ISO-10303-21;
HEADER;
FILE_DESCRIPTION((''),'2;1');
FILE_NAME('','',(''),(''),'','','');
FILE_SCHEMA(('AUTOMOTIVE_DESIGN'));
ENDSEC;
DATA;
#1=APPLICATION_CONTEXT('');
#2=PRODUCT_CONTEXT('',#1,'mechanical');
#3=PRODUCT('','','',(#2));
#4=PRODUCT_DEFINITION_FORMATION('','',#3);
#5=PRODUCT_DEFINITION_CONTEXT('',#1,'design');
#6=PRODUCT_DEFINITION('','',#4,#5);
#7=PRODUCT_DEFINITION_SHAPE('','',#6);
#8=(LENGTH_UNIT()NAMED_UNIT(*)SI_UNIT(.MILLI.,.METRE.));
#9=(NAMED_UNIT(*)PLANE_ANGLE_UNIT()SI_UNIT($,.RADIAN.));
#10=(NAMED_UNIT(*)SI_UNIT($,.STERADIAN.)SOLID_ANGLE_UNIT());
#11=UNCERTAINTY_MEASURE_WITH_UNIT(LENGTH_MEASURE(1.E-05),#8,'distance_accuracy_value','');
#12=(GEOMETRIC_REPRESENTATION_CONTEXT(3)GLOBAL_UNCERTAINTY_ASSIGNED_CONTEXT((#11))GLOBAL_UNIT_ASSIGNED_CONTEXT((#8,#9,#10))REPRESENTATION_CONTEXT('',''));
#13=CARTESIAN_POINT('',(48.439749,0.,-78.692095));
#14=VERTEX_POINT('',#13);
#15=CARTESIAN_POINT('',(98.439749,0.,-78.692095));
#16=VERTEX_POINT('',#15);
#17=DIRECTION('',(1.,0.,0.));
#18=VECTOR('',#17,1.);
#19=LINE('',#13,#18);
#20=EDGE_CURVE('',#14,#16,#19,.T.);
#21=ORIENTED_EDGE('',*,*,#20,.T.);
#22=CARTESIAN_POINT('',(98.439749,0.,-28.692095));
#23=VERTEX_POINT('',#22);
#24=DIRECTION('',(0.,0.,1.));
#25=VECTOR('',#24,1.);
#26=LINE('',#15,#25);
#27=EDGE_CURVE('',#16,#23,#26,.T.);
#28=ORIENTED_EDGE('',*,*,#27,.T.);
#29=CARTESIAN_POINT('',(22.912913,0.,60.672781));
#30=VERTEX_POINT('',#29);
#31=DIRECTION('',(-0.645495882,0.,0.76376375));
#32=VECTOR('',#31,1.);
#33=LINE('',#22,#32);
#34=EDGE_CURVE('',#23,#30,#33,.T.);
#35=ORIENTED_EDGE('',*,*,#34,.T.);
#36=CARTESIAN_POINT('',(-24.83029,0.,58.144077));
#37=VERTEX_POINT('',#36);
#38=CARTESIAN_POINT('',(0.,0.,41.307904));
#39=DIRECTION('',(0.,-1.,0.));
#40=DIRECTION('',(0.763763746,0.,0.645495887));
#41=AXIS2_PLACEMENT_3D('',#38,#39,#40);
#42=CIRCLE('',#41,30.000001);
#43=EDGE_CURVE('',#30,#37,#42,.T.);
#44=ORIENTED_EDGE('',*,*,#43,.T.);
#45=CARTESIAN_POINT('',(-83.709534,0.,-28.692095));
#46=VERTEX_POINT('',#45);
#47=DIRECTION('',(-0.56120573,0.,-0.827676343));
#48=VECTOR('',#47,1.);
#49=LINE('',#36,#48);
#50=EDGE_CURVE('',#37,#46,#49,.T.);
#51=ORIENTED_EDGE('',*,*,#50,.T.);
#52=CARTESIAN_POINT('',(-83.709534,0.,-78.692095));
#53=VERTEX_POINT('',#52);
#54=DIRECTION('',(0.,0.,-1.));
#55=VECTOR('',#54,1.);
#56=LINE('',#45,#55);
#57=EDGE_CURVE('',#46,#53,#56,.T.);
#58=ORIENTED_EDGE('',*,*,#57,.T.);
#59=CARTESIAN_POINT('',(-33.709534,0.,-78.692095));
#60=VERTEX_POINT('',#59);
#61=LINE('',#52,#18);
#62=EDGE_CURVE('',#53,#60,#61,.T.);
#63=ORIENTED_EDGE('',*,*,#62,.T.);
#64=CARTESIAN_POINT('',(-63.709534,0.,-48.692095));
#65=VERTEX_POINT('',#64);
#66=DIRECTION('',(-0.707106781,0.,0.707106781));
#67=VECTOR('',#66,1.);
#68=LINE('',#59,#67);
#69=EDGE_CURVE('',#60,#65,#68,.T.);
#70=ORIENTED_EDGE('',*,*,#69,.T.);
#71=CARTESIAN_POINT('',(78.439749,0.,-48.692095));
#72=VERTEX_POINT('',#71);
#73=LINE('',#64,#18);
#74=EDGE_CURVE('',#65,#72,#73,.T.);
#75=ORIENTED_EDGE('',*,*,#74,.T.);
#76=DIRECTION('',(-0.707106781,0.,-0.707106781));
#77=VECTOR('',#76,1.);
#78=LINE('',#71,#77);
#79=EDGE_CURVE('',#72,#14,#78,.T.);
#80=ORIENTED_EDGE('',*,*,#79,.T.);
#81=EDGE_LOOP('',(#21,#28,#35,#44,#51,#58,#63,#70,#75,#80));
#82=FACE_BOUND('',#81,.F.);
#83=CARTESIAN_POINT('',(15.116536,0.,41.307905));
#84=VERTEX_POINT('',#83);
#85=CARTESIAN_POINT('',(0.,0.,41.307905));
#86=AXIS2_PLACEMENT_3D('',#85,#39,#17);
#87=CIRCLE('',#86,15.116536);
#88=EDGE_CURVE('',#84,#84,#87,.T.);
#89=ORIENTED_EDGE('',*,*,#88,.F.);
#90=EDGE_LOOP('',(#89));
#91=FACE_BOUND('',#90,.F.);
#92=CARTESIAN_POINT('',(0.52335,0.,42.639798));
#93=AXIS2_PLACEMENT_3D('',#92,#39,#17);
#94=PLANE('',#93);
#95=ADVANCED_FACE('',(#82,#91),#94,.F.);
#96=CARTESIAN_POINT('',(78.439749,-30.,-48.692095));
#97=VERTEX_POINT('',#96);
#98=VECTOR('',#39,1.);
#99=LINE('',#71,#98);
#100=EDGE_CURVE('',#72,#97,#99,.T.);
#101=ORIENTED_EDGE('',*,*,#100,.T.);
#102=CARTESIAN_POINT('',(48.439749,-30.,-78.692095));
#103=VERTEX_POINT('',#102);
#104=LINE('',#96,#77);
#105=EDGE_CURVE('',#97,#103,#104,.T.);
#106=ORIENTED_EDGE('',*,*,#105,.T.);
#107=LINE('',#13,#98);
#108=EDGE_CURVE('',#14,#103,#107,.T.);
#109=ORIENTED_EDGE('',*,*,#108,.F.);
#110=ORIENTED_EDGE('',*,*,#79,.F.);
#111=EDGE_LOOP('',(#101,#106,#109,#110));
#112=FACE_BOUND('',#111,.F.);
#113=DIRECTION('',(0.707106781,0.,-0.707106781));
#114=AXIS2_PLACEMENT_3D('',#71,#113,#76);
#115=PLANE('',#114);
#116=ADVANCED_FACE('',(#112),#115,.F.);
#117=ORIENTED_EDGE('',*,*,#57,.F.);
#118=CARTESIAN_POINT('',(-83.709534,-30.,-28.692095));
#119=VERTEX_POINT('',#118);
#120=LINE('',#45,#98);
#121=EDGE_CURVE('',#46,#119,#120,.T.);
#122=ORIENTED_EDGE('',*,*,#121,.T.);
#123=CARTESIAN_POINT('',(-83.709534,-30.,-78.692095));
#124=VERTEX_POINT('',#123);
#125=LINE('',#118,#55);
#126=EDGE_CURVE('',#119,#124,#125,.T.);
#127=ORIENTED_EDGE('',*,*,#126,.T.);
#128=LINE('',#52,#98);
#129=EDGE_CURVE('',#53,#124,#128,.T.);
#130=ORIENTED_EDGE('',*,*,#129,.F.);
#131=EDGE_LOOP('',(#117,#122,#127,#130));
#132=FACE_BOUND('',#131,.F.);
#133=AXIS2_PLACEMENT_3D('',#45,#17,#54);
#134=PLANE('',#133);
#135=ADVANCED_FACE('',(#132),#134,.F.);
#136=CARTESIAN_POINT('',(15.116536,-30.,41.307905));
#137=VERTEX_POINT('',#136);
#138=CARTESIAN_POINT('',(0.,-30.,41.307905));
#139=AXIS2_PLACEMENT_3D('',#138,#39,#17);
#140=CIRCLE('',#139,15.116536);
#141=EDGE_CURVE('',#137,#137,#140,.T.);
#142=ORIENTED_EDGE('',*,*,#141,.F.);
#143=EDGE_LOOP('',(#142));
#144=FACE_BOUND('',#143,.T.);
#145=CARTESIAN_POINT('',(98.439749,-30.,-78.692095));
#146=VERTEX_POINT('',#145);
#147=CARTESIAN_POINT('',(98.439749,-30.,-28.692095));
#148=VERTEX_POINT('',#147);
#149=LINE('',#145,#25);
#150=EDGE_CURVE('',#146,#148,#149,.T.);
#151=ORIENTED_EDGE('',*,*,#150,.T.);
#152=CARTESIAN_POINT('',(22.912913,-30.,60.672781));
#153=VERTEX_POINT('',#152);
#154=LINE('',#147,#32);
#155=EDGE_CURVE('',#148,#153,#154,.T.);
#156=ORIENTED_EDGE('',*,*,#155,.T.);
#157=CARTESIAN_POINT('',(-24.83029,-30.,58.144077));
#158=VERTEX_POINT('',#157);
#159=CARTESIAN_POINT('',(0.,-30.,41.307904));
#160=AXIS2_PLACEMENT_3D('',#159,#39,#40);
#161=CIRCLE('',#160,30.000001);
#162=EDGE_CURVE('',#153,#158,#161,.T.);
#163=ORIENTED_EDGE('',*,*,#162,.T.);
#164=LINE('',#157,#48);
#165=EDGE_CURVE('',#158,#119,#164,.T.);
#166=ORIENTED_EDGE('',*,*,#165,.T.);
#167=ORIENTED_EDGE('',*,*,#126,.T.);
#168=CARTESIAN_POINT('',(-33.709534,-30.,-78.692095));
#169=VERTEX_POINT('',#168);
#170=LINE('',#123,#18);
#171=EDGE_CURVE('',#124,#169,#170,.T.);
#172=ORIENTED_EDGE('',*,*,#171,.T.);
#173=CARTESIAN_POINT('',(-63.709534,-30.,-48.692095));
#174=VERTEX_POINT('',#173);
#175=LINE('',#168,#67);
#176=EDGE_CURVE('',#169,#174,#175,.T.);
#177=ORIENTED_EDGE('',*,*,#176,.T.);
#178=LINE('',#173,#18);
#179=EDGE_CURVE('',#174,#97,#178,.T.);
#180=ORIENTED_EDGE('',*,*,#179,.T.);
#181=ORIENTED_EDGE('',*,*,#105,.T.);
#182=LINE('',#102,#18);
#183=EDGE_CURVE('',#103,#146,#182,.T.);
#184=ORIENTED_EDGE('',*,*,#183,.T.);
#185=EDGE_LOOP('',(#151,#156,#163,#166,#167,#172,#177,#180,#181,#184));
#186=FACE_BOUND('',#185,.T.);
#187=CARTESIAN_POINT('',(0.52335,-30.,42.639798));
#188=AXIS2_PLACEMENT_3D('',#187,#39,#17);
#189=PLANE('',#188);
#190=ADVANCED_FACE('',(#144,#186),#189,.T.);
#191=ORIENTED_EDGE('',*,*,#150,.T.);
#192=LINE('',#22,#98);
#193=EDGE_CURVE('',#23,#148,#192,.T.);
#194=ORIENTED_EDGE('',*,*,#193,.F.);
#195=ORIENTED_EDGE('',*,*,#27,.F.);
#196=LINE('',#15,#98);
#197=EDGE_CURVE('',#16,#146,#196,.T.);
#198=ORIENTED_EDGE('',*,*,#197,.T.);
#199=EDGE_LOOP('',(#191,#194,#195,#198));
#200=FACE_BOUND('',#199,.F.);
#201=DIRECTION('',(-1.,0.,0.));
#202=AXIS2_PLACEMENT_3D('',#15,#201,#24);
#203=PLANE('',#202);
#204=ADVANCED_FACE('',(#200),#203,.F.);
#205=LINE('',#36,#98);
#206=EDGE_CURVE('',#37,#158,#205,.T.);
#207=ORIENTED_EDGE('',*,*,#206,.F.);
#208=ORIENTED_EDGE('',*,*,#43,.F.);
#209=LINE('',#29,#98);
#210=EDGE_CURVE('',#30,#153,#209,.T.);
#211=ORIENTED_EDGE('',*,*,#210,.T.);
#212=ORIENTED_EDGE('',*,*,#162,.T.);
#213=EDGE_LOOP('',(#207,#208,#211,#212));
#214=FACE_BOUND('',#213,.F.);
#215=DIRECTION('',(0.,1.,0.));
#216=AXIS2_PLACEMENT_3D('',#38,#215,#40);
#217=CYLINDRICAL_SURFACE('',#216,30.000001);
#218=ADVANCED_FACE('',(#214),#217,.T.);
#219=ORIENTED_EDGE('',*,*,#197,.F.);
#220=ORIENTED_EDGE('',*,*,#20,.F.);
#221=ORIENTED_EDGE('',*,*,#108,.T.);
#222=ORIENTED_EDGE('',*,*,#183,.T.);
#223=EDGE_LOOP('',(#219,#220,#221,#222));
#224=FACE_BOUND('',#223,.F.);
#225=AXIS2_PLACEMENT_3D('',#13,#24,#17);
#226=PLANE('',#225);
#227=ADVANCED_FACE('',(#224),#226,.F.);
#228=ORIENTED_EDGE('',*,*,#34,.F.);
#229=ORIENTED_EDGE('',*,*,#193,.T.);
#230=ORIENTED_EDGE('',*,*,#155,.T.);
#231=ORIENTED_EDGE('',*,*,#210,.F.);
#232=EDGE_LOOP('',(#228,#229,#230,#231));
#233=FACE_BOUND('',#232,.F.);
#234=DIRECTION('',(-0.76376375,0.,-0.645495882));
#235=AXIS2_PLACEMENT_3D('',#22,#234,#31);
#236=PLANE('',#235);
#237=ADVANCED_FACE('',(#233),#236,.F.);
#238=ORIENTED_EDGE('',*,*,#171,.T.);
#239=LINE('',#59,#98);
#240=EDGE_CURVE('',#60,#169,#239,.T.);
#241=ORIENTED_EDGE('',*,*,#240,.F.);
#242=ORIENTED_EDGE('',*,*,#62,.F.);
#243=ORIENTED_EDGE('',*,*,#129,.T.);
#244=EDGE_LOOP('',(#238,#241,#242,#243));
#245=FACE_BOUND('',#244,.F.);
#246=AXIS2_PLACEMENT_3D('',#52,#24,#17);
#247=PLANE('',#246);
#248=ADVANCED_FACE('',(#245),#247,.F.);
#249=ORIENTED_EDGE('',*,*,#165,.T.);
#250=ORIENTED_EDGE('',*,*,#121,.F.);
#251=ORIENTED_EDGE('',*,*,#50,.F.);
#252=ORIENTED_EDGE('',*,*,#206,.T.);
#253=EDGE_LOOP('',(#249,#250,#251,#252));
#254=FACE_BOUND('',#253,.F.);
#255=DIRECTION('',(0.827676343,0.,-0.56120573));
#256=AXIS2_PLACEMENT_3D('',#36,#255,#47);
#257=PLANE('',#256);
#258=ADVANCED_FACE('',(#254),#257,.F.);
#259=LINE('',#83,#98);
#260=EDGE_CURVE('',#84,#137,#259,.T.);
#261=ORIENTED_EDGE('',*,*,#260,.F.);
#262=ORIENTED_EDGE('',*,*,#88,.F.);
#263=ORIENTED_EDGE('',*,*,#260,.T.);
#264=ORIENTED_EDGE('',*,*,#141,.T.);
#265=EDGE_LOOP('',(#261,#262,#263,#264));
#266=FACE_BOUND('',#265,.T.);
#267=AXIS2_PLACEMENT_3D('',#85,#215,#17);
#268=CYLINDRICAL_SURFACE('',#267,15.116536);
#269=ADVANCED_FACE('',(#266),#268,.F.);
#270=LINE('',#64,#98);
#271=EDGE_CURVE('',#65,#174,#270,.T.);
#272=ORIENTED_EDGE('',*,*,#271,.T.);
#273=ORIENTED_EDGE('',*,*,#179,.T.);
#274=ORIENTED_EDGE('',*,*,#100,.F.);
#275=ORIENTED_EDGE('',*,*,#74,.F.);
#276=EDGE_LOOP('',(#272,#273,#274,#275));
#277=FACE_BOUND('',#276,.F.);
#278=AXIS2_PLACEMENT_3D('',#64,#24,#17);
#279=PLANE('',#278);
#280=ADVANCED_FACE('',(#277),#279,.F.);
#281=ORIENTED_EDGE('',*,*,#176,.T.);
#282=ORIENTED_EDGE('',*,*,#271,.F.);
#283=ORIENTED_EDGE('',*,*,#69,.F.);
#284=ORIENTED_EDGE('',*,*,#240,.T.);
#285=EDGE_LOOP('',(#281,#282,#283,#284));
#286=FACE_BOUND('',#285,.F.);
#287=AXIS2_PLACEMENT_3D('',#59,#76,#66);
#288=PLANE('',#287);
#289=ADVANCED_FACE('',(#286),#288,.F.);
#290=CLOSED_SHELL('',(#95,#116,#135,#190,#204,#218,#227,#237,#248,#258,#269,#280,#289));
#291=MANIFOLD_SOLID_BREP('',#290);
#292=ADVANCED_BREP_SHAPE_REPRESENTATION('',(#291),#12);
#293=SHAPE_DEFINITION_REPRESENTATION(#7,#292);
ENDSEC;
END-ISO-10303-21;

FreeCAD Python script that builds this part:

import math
import FreeCAD as App
import Part
import Sketcher
Q = App.Units.Quantity

doc = App.newDocument("Part")
body = doc.addObject("PartDesign::Body", "Body")

# Sketch on XZ plane
sketch1 = doc.addObject("Sketcher::SketchObject", "Sketch")
body.addObject(sketch1)
sketch1.AttachmentSupport = (doc.XZ_Plane, [""])
sketch1.MapMode = "FlatFace"
sketch1.addGeometry(Part.ArcOfCircle(Part.Circle(App.Vector(0, 41, 0), App.Vector(0, 0, 1), 30), math.radians(40), math.radians(146)), False)
sketch1.addGeometry(Part.LineSegment(App.Vector(-25, 58, 0), App.Vector(-84, -29, 0)), False)
sketch1.addGeometry(Part.LineSegment(App.Vector(-84, -29, 0), App.Vector(-84, -79, 0)), False)
sketch1.addGeometry(Part.LineSegment(App.Vector(-84, -79, 0), App.Vector(-34, -79, 0)), False)
sketch1.addGeometry(Part.LineSegment(App.Vector(-34, -79, 0), App.Vector(-64, -49, 0)), False)
sketch1.addGeometry(Part.LineSegment(App.Vector(-64, -49, 0), App.Vector(78, -49, 0)), False)
sketch1.addGeometry(Part.LineSegment(App.Vector(78, -49, 0), App.Vector(48, -79, 0)), False)
sketch1.addGeometry(Part.LineSegment(App.Vector(48, -79, 0), App.Vector(98, -79, 0)), False)
sketch1.addGeometry(Part.LineSegment(App.Vector(98, -79, 0), App.Vector(98, -29, 0)), False)
sketch1.addGeometry(Part.LineSegment(App.Vector(98, -29, 0), App.Vector(23, 61, 0)), False)
sketch1.addGeometry(Part.Circle(App.Vector(0, 41, 0), App.Vector(0, 0, 1), 15), False)
sketch1.addConstraint(Sketcher.Constraint("Tangent", 0, 2, 1, 1))
sketch1.addConstraint(Sketcher.Constraint("Coincident", 1, 2, 2, 1))
sketch1.addConstraint(Sketcher.Constraint("Coincident", 2, 2, 3, 1))
sketch1.addConstraint(Sketcher.Constraint("Coincident", 3, 2, 4, 1))
sketch1.addConstraint(Sketcher.Constraint("Coincident", 4, 2, 5, 1))
sketch1.addConstraint(Sketcher.Constraint("Coincident", 5, 2, 6, 1))
sketch1.addConstraint(Sketcher.Constraint("Coincident", 6, 2, 7, 1))
sketch1.addConstraint(Sketcher.Constraint("Coincident", 7, 2, 8, 1))
sketch1.addConstraint(Sketcher.Constraint("Coincident", 8, 2, 9, 1))
sketch1.addConstraint(Sketcher.Constraint("Tangent", 9, 2, 0, 1))
sketch1.addConstraint(Sketcher.Constraint("Vertical", 2))
sketch1.addConstraint(Sketcher.Constraint("Horizontal", 3))
sketch1.addConstraint(Sketcher.Constraint("Horizontal", 5))
sketch1.addConstraint(Sketcher.Constraint("Horizontal", 7))
sketch1.addConstraint(Sketcher.Constraint("Vertical", 8))
sketch1.addConstraint(Sketcher.Constraint("Coincident", 10, 3, 0, 3))
sketch1.addConstraint(Sketcher.Constraint("PointOnObject", 0, 3, -2))
sketch1.addConstraint(Sketcher.Constraint("Perpendicular", 4, 6))
sketch1.addConstraint(Sketcher.Constraint("Horizontal", 3, 2, 6, 2))
sketch1.addConstraint(Sketcher.Constraint("Horizontal", 1, 2, 8, 2))
sketch1.addConstraint(Sketcher.Constraint("Equal", 3, 7))
sketch1.addConstraint(Sketcher.Constraint("Equal", 7, 2))
sketch1.addConstraint(Sketcher.Constraint("Equal", 4, 6))
sketch1.addConstraint(Sketcher.Constraint("Radius", 0, Q("30.000001 mm")))
sketch1.addConstraint(Sketcher.Constraint("DistanceX", 3, 1, 3, 2, Q("50 mm")))
sketch1.addConstraint(Sketcher.Constraint("DistanceY", 1, 2, 0, 3, Q("69.999999 mm")))
sketch1.addConstraint(Sketcher.Constraint("DistanceX", 1, 2, 4, 2, Q("20 mm")))
sketch1.addConstraint(Sketcher.Constraint("Diameter", 10, Q("30.233072 mm")))
sketch1.addConstraint(Sketcher.Constraint("DistanceX", 5, 1, 5, 2, Q("142.149283 mm")))
sketch1.addConstraint(Sketcher.Constraint("DistanceX", -1, 1, 5, 2, Q("78.439749 mm")))
sketch1.addConstraint(Sketcher.Constraint("DistanceY", -1, 1, 9, 2, Q("60.672781 mm")))
pad1 = doc.addObject("PartDesign::Pad", "Pad")
body.addObject(pad1)
pad1.Profile = sketch1
pad1.Length = 30

doc.recompute()
